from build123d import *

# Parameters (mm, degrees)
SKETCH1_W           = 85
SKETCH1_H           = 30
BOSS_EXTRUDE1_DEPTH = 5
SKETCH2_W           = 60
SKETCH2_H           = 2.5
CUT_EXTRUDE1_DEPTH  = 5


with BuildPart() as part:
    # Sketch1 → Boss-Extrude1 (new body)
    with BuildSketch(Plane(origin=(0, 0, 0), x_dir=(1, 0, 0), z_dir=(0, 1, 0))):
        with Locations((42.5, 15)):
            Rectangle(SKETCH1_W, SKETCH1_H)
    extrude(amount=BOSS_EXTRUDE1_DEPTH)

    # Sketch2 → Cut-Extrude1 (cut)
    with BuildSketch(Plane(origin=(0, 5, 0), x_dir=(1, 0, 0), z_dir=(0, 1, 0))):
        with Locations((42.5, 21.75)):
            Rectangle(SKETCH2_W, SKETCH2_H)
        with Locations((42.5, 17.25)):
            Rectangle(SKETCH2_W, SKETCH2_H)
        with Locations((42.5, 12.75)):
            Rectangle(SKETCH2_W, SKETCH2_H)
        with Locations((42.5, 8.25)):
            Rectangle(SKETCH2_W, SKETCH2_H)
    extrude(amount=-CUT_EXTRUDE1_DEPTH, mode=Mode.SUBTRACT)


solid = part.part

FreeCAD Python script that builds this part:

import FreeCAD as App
import Part
import Sketcher

doc = App.newDocument("Part")
body = doc.addObject("PartDesign::Body", "Body")

# Sketch on XZ plane
sketch1 = body.newObject("Sketcher::SketchObject", "Sketch")
sketch1.AttachmentSupport = (doc.getObject("XZ_Plane"), [""])
sketch1.MapMode = "FlatFace"
sketch1.addGeometry(Part.LineSegment(App.Vector(0, -30, 0), App.Vector(0, 0, 0)), False)
sketch1.addGeometry(Part.LineSegment(App.Vector(0, 0, 0), App.Vector(85, 0, 0)), False)
sketch1.addGeometry(Part.LineSegment(App.Vector(85, 0, 0), App.Vector(85, -30, 0)), False)
sketch1.addGeometry(Part.LineSegment(App.Vector(85, -30, 0), App.Vector(0, -30, 0)), False)
sketch1.addConstraint(Sketcher.Constraint("Coincident", 0, 2, 1, 1))
sketch1.addConstraint(Sketcher.Constraint("Coincident", 1, 2, 2, 1))
sketch1.addConstraint(Sketcher.Constraint("Coincident", 2, 2, 3, 1))
sketch1.addConstraint(Sketcher.Constraint("Coincident", 3, 2, 0, 1))
sketch1.addConstraint(Sketcher.Constraint("Vertical", 0))
sketch1.addConstraint(Sketcher.Constraint("Horizontal", 1))
sketch1.addConstraint(Sketcher.Constraint("Vertical", 2))
sketch1.addConstraint(Sketcher.Constraint("Horizontal", 3))
sketch1.addConstraint(Sketcher.Constraint("Coincident", 0, 2, -1, 1))
sketch1.addConstraint(Sketcher.Constraint("DistanceX", 1, 1, 1, 2, 85.0))
sketch1.addConstraint(Sketcher.Constraint("DistanceY", 0, 1, 0, 2, 30.0))
pad1 = body.newObject("PartDesign::Pad", "Pad")
pad1.Profile = sketch1
pad1.Length = 5
pad1.Reversed = True

# Sketch on XZ plane
sketch2 = body.newObject("Sketcher::SketchObject", "Sketch001")
sketch2.AttachmentSupport = (doc.getObject("XZ_Plane"), [""])
sketch2.MapMode = "FlatFace"
sketch2.AttachmentOffset = App.Placement(App.Vector(0, 0, -5), App.Rotation())
sketch2.addGeometry(Part.LineSegment(App.Vector(12.5, -23, 0), App.Vector(12.5, -20.5, 0)), False)
sketch2.addGeometry(Part.LineSegment(App.Vector(12.5, -20.5, 0), App.Vector(72.5, -20.5, 0)), False)
sketch2.addGeometry(Part.LineSegment(App.Vector(72.5, -20.5, 0), App.Vector(72.5, -23, 0)), False)
sketch2.addGeometry(Part.LineSegment(App.Vector(72.5, -23, 0), App.Vector(12.5, -23, 0)), False)
sketch2.addGeometry(Part.LineSegment(App.Vector(12.5, -18.5, 0), App.Vector(12.5, -16, 0)), False)
sketch2.addGeometry(Part.LineSegment(App.Vector(12.5, -16, 0), App.Vector(72.5, -16, 0)), False)
sketch2.addGeometry(Part.LineSegment(App.Vector(72.5, -16, 0), App.Vector(72.5, -18.5, 0)), False)
sketch2.addGeometry(Part.LineSegment(App.Vector(72.5, -18.5, 0), App.Vector(12.5, -18.5, 0)), False)
sketch2.addGeometry(Part.LineSegment(App.Vector(12.5, -14, 0), App.Vector(12.5, -11.5, 0)), False)
sketch2.addGeometry(Part.LineSegment(App.Vector(12.5, -11.5, 0), App.Vector(72.5, -11.5, 0)), False)
sketch2.addGeometry(Part.LineSegment(App.Vector(72.5, -11.5, 0), App.Vector(72.5, -14, 0)), False)
sketch2.addGeometry(Part.LineSegment(App.Vector(72.5, -14, 0), App.Vector(12.5, -14, 0)), False)
sketch2.addGeometry(Part.LineSegment(App.Vector(12.5, -9.5, 0), App.Vector(12.5, -7, 0)), False)
sketch2.addGeometry(Part.LineSegment(App.Vector(12.5, -7, 0), App.Vector(72.5, -7, 0)), False)
sketch2.addGeometry(Part.LineSegment(App.Vector(72.5, -7, 0), App.Vector(72.5, -9.5, 0)), False)
sketch2.addGeometry(Part.LineSegment(App.Vector(72.5, -9.5, 0), App.Vector(12.5, -9.5, 0)), False)
sketch2.addConstraint(Sketcher.Constraint("Coincident", 0, 2, 1, 1))
sketch2.addConstraint(Sketcher.Constraint("Coincident", 1, 2, 2, 1))
sketch2.addConstraint(Sketcher.Constraint("Coincident", 2, 2, 3, 1))
sketch2.addConstraint(Sketcher.Constraint("Coincident", 3, 2, 0, 1))
sketch2.addConstraint(Sketcher.Constraint("Coincident", 4, 2, 5, 1))
sketch2.addConstraint(Sketcher.Constraint("Coincident", 5, 2, 6, 1))
sketch2.addConstraint(Sketcher.Constraint("Coincident", 6, 2, 7, 1))
sketch2.addConstraint(Sketcher.Constraint("Coincident", 7, 2, 4, 1))
sketch2.addConstraint(Sketcher.Constraint("Coincident", 8, 2, 9, 1))
sketch2.addConstraint(Sketcher.Constraint("Coincident", 9, 2, 10, 1))
sketch2.addConstraint(Sketcher.Constraint("Coincident", 10, 2, 11, 1))
sketch2.addConstraint(Sketcher.Constraint("Coincident", 11, 2, 8, 1))
sketch2.addConstraint(Sketcher.Constraint("Coincident", 12, 2, 13, 1))
sketch2.addConstraint(Sketcher.Constraint("Coincident", 13, 2, 14, 1))
sketch2.addConstraint(Sketcher.Constraint("Coincident", 14, 2, 15, 1))
sketch2.addConstraint(Sketcher.Constraint("Coincident", 15, 2, 12, 1))
sketch2.addConstraint(Sketcher.Constraint("Vertical", 0))
sketch2.addConstraint(Sketcher.Constraint("Horizontal", 1))
sketch2.addConstraint(Sketcher.Constraint("Vertical", 2))
sketch2.addConstraint(Sketcher.Constraint("Horizontal", 3))
sketch2.addConstraint(Sketcher.Constraint("Vertical", 4))
sketch2.addConstraint(Sketcher.Constraint("Horizontal", 5))
sketch2.addConstraint(Sketcher.Constraint("Vertical", 6))
sketch2.addConstraint(Sketcher.Constraint("Horizontal", 7))
sketch2.addConstraint(Sketcher.Constraint("Vertical", 8))
sketch2.addConstraint(Sketcher.Constraint("Horizontal", 9))
sketch2.addConstraint(Sketcher.Constraint("Vertical", 10))
sketch2.addConstraint(Sketcher.Constraint("Horizontal", 11))
sketch2.addConstraint(Sketcher.Constraint("Vertical", 12))
sketch2.addConstraint(Sketcher.Constraint("Horizontal", 13))
sketch2.addConstraint(Sketcher.Constraint("Vertical", 14))
sketch2.addConstraint(Sketcher.Constraint("Horizontal", 15))
sketch2.addConstraint(Sketcher.Constraint("Vertical", 3, 2, 4, 2))
sketch2.addConstraint(Sketcher.Constraint("Vertical", 2, 2, 5, 2))
sketch2.addConstraint(Sketcher.Constraint("Vertical", 7, 2, 8, 2))
sketch2.addConstraint(Sketcher.Constraint("Vertical", 6, 2, 9, 2))
sketch2.addConstraint(Sketcher.Constraint("Vertical", 11, 2, 12, 2))
sketch2.addConstraint(Sketcher.Constraint("Vertical", 10, 2, 13, 2))
sketch2.addConstraint(Sketcher.Constraint("Equal", 2, 4))
sketch2.addConstraint(Sketcher.Constraint("Equal", 6, 8))
sketch2.addConstraint(Sketcher.Constraint("Equal", 10, 12))
sketch2.addConstraint(Sketcher.Constraint("DistanceX", 1, 1, 1, 2, 60.0))
sketch2.addConstraint(Sketcher.Constraint("DistanceY", 0, 1, 0, 2, 2.5))
sketch2.addConstraint(Sketcher.Constraint("DistanceY", 2, 2, -1, 1, 23.0))
sketch2.addConstraint(Sketcher.Constraint("DistanceY", 4, 2, -1, 1, 16.0))
sketch2.addConstraint(Sketcher.Constraint("DistanceY", 10, 2, -1, 1, 14.0))
sketch2.addConstraint(Sketcher.Constraint("DistanceY", 12, 2, -1, 1, 7.0))
sketch2.addConstraint(Sketcher.Constraint("DistanceX", -1, 1, 0, 2, 12.5))
pocket1 = body.newObject("PartDesign::Pocket", "Pocket")
pocket1.Profile = sketch2
pocket1.Length = 5
pocket1.Reversed = True

doc.recompute()
